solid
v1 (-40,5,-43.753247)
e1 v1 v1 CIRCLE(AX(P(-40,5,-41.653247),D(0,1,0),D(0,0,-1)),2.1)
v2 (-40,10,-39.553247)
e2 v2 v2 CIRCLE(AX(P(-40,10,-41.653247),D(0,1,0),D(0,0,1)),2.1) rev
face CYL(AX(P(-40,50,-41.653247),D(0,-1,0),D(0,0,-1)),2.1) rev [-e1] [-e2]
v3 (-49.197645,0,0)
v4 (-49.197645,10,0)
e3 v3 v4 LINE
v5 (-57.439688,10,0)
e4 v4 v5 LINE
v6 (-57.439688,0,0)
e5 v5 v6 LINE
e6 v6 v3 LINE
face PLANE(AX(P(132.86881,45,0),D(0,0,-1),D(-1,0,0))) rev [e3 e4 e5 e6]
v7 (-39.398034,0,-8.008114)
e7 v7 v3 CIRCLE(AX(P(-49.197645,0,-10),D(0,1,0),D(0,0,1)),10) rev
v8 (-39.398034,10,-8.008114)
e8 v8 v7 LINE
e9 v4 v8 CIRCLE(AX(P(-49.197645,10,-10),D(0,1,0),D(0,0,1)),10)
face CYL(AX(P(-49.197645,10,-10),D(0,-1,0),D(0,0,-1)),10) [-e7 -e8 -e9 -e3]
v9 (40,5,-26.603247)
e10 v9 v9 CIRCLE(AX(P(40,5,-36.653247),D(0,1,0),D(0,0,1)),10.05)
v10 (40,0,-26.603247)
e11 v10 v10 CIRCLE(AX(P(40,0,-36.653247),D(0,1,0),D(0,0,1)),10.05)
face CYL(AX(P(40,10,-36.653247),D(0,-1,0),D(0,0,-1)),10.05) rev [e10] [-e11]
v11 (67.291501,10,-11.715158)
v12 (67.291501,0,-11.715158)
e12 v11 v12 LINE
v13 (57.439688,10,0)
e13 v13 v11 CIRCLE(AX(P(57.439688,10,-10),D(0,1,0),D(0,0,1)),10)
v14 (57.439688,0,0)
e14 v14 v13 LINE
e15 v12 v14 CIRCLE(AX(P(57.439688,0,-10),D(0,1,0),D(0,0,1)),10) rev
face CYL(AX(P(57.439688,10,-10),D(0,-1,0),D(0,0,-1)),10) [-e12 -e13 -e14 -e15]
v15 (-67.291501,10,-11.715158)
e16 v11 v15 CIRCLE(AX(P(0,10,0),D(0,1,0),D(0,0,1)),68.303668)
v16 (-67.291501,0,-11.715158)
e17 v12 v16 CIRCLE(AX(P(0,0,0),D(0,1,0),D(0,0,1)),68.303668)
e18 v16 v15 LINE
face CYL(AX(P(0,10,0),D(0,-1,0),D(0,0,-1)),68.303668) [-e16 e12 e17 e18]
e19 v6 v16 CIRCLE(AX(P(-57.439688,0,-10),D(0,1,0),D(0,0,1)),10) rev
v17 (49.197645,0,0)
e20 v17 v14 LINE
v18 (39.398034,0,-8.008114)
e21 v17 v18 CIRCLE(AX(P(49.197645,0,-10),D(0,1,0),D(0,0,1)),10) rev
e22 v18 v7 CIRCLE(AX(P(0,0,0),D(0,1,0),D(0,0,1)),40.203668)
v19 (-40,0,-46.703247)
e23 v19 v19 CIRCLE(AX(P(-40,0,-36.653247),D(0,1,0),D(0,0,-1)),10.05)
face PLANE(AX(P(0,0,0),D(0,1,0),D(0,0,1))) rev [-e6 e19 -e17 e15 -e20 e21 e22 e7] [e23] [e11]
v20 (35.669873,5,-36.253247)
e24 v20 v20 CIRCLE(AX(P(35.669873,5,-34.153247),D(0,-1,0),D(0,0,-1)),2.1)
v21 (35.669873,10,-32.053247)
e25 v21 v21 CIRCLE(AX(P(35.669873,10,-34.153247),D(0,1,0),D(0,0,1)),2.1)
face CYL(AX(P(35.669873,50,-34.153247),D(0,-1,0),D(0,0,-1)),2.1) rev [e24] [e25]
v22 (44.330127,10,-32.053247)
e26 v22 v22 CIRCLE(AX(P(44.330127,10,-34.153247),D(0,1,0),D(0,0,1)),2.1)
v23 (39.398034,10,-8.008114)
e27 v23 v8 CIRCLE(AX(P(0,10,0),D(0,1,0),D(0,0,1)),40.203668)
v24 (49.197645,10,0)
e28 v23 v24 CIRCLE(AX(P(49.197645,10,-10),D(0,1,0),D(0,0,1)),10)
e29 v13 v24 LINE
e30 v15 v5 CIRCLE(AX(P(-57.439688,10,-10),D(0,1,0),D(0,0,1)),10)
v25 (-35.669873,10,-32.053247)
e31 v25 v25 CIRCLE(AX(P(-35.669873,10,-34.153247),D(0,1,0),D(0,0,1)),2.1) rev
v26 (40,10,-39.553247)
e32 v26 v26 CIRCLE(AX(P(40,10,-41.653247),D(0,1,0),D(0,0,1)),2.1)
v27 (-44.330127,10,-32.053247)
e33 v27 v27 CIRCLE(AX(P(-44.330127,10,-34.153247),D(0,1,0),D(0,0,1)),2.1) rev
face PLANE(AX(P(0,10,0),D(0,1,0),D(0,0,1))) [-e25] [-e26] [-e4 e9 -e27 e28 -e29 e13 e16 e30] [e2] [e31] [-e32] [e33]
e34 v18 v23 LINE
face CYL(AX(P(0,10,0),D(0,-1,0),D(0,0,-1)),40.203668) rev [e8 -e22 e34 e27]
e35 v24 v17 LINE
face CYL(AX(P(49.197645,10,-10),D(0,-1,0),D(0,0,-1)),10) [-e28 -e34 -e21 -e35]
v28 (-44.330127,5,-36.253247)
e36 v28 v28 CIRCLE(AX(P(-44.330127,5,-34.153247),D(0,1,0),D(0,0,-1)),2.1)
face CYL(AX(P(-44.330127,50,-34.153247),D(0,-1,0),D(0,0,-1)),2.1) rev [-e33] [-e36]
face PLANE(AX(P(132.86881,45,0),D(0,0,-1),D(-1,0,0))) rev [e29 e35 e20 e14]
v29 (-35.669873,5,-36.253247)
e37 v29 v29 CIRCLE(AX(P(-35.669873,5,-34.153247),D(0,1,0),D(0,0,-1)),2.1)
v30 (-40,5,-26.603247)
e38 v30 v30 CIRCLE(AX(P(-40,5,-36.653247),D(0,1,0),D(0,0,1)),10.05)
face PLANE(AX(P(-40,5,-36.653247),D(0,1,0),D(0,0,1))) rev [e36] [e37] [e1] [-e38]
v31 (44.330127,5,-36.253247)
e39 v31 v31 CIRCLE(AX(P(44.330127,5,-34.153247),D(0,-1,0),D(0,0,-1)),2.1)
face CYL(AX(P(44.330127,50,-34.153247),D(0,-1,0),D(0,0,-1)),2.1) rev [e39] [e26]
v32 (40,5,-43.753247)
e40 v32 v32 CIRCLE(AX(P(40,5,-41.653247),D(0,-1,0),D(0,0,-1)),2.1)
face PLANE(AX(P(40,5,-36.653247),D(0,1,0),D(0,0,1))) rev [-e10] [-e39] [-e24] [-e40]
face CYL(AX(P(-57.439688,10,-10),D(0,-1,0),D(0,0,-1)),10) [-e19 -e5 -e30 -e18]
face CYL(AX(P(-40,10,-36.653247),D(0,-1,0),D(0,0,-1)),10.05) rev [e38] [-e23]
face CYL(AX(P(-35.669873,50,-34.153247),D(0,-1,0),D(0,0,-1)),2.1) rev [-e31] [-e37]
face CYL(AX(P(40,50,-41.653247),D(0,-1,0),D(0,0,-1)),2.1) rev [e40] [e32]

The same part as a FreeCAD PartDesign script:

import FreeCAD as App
import Part
import Sketcher

V = App.Vector
Q = App.Units.Quantity


def edges_at(feature, points):
    """Names of the edges that pass closest to the given points."""
    edges = feature.Shape.Edges
    near = lambda p: min(range(len(edges)), key=lambda i: edges[i].distToShape(Part.Vertex(*p))[0])
    return sorted({f"Edge{near(p) + 1}" for p in points})

doc = App.newDocument("Part")
params = doc.addObject("Spreadsheet::Sheet", "Params")
for row, (alias, value) in enumerate([
    ("sketch1_diameter", "20.1 mm"),
    ("pad1_length", "10 mm"),
    ("sketch2_diameter", "20.1 mm"),
    ("pad2_length", "5 mm"),
    ("pocket1_length", "45 mm"),
    ("sketch4_diameter", "4.2 mm"),
    ("pocket2_length", "45 mm"),
    ("fillet_radius", "10 mm"),
], start=1):
    params.set(f"A{row}", alias)
    params.set(f"B{row}", "=" + value)
    params.setAlias(f"B{row}", alias)

body = doc.addObject("PartDesign::Body", "Body")

sketch1 = doc.addObject("Sketcher::SketchObject", "Sketch")
body.addObject(sketch1)
sketch1.AttachmentSupport = (doc.XZ_Plane, [""])
sketch1.MapMode = "FlatFace"
sketch1.addGeometry([
    Part.Circle(V(0, 0, 0), V(0, 0, 1), 68),
    Part.Circle(V(-40, -37, 0), V(0, 0, 1), 10),
    Part.Circle(V(40, -37, 0), V(0, 0, 1), 10),
    Part.Circle(V(0, 0, 0), V(0, 0, 1), 40),
], False)
sketch1.addConstraint([
    Sketcher.Constraint("Coincident", 0, 3, -1, 1),
    Sketcher.Constraint("Coincident", 3, 3, -1, 1),
    Sketcher.Constraint("Equal", 1, 2),
    Sketcher.Constraint("Symmetric", 1, 3, 2, 3, -2),
    Sketcher.Constraint("Diameter", 1, Q("20.1 mm")),
    Sketcher.Constraint("DistanceX", 1, 3, -1, 1, Q("40 mm")),
    Sketcher.Constraint("Diameter", 0, Q("136.607336 mm")),
    Sketcher.Constraint("Diameter", 3, Q("80.407336 mm")),
    Sketcher.Constraint("DistanceY", 1, 3, -1, 1, Q("36.653247 mm")),
])
sketch1.setExpression("Constraints[4]", "Params.sketch1_diameter")
pad1 = doc.addObject("PartDesign::Pad", "Pad")
body.addObject(pad1)
pad1.Profile = sketch1
pad1.setExpression("Length", "Params.pad1_length")
pad1.Reversed = True

sketch2 = doc.addObject("Sketcher::SketchObject", "Sketch001")
body.addObject(sketch2)
sketch2.AttachmentSupport = (doc.XZ_Plane, [""])
sketch2.MapMode = "FlatFace"
sketch2.AttachmentOffset = App.Placement(V(0, 0, -5), App.Rotation())
sketch2.addGeometry([
    Part.Circle(V(-40, -37, 0), V(0, 0, 1), 10),
    Part.Circle(V(40, -37, 0), V(0, 0, 1), 10),
], False)
sketch2.addConstraint([
    Sketcher.Constraint("Equal", 0, 1),
    Sketcher.Constraint("Symmetric", 0, 3, 1, 3, -2),
    Sketcher.Constraint("Diameter", 0, Q("20.1 mm")),
    Sketcher.Constraint("DistanceX", 0, 3, -1, 1, Q("40 mm")),
    Sketcher.Constraint("DistanceY", 0, 3, -1, 1, Q("36.653247 mm")),
])
sketch2.setExpression("Constraints[2]", "Params.sketch2_diameter")
pad2 = doc.addObject("PartDesign::Pad", "Pad001")
body.addObject(pad2)
pad2.Profile = sketch2
pad2.setExpression("Length", "Params.pad2_length")
pad2.Reversed = True

sketch3 = doc.addObject("Sketcher::SketchObject", "Sketch002")
body.addObject(sketch3)
sketch3.AttachmentSupport = (doc.XZ_Plane, [""])
sketch3.MapMode = "FlatFace"
sketch3.addGeometry([
    Part.LineSegment(V(133, 0, 0), V(133, 107, 0)),
    Part.LineSegment(V(133, 107, 0), V(-147, 107, 0)),
    Part.LineSegment(V(-147, 107, 0), V(-147, 0, 0)),
    Part.LineSegment(V(-147, 0, 0), V(133, 0, 0)),
], False)
sketch3.addConstraint([
    Sketcher.Constraint("Coincident", 0, 2, 1, 1),
    Sketcher.Constraint("Coincident", 1, 2, 2, 1),
    Sketcher.Constraint("Coincident", 2, 2, 3, 1),
    Sketcher.Constraint("Coincident", 3, 2, 0, 1),
    Sketcher.Constraint("Vertical", 0),
    Sketcher.Constraint("Horizontal", 1),
    Sketcher.Constraint("Vertical", 2),
    Sketcher.Constraint("Horizontal", 3),
    Sketcher.Constraint("PointOnObject", 2, 2, -1),
    Sketcher.Constraint("DistanceY", 0, 1, 0, 2, Q("106.849461 mm")),
    Sketcher.Constraint("DistanceX", 1, 2, 1, 1, Q("280.291204 mm")),
    Sketcher.Constraint("DistanceX", -1, 1, 0, 2, Q("132.86881 mm")),
])
pocket1 = doc.addObject("PartDesign::Pocket", "Pocket")
body.addObject(pocket1)
pocket1.Profile = sketch3
pocket1.setExpression("Length", "Params.pocket1_length")

sketch4 = doc.addObject("Sketcher::SketchObject", "Sketch003")
body.addObject(sketch4)
sketch4.AttachmentSupport = (doc.XZ_Plane, [""])
sketch4.MapMode = "FlatFace"
sketch4.AttachmentOffset = App.Placement(V(0, 0, -5), App.Rotation())
sketch4.addGeometry([
    Part.Circle(V(40, -41.7, 0), V(0, 0, 1), 2.1),
    Part.Circle(V(35.7, -34.2, 0), V(0, 0, 1), 2.1),
    Part.Circle(V(44.3, -34.2, 0), V(0, 0, 1), 2.1),
], False)
sketch4.addConstraint([
    Sketcher.Constraint("Equal", 0, 1),
    Sketcher.Constraint("Equal", 1, 2),
    Sketcher.Constraint("Horizontal", 1, 3, 2, 3),
    Sketcher.Constraint("Diameter", 0, Q("4.2 mm")),
    Sketcher.Constraint("DistanceX", -1, 1, 0, 3, Q("40 mm")),
    Sketcher.Constraint("DistanceY", 0, 3, 1, 3, Q("7.5 mm")),
    Sketcher.Constraint("DistanceY", 0, 3, -1, 1, Q("41.653247 mm")),
    Sketcher.Constraint("DistanceX", -1, 1, 1, 3, Q("35.669873 mm")),
    Sketcher.Constraint("DistanceX", -1, 1, 2, 3, Q("44.330127 mm")),
])
sketch4.setExpression("Constraints[3]", "Params.sketch4_diameter")
pocket2 = doc.addObject("PartDesign::Pocket", "Pocket001")
body.addObject(pocket2)
pocket2.Profile = sketch4
pocket2.setExpression("Length", "Params.pocket2_length")
doc.recompute()

mirrored = doc.addObject("PartDesign::Mirrored", "Mirrored")
body.addObject(mirrored)
mirrored.Originals = [pocket2]
mirrored.MirrorPlane = (doc.YZ_Plane, [""])
body.Tip = mirrored
doc.recompute()

fillet = doc.addObject("PartDesign::Fillet", "Fillet")
body.addObject(fillet)
fillet.Base = (mirrored, edges_at(mirrored, [
    (-40.204, 5, 0),
    (40.204, 5, 0),
    (68.304, 5, 0),
    (-68.304, 5, 0),
]))
fillet.setExpression("Radius", "Params.fillet_radius")

doc.recompute()
